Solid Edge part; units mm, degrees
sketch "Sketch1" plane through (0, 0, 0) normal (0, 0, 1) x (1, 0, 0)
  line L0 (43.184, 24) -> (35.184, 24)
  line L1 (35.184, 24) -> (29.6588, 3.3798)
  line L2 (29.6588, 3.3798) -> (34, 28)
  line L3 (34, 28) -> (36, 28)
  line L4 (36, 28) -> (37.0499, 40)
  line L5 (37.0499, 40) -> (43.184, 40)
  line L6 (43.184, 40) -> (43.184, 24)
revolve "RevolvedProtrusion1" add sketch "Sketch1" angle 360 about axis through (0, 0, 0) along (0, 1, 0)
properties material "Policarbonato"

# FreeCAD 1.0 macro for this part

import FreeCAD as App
import Part
import Sketcher
Q = App.Units.Quantity

doc = App.newDocument("Part")
params = doc.addObject("Spreadsheet::Sheet", "Params")
for row, (alias, value) in enumerate([
    ("sketch1_width", "8 mm"),
    ("sketch1_width2", "2 mm"),
    ("sketch1_height", "16 mm"),
    ("sketch1_length", "25 mm"),
    ("revolution_angle", "360 deg"),
], start=1):
    params.set(f"A{row}", alias)
    params.set(f"B{row}", "=" + value)
    params.setAlias(f"B{row}", alias)

body = doc.addObject("PartDesign::Body", "Body")

sketch1 = doc.addObject("Sketcher::SketchObject", "Sketch")
body.addObject(sketch1)
sketch1.AttachmentSupport = (doc.XY_Plane, [""])
sketch1.MapMode = "FlatFace"
sketch1.addGeometry(Part.LineSegment(App.Vector(35.184, 24, 0), App.Vector(43.184, 24, 0)), False)
sketch1.addGeometry(Part.LineSegment(App.Vector(43.184, 24, 0), App.Vector(43.184, 40, 0)), False)
sketch1.addGeometry(Part.LineSegment(App.Vector(43.184, 40, 0), App.Vector(37.0499, 40, 0)), False)
sketch1.addGeometry(Part.LineSegment(App.Vector(37.0499, 40, 0), App.Vector(36, 28, 0)), False)
sketch1.addGeometry(Part.LineSegment(App.Vector(36, 28, 0), App.Vector(34, 28, 0)), False)
sketch1.addGeometry(Part.LineSegment(App.Vector(34, 28, 0), App.Vector(29.6588, 3.3798, 0)), False)
sketch1.addGeometry(Part.LineSegment(App.Vector(29.6588, 3.3798, 0), App.Vector(35.184, 24, 0)), False)
sketch1.addConstraint(Sketcher.Constraint("Coincident", 0, 2, 1, 1))
sketch1.addConstraint(Sketcher.Constraint("Coincident", 1, 2, 2, 1))
sketch1.addConstraint(Sketcher.Constraint("Coincident", 2, 2, 3, 1))
sketch1.addConstraint(Sketcher.Constraint("Coincident", 3, 2, 4, 1))
sketch1.addConstraint(Sketcher.Constraint("Coincident", 4, 2, 5, 1))
sketch1.addConstraint(Sketcher.Constraint("Coincident", 5, 2, 6, 1))
sketch1.addConstraint(Sketcher.Constraint("Coincident", 6, 2, 0, 1))
sketch1.addConstraint(Sketcher.Constraint("Horizontal", 0))
sketch1.addConstraint(Sketcher.Constraint("Vertical", 1))
sketch1.addConstraint(Sketcher.Constraint("Horizontal", 2))
sketch1.addConstraint(Sketcher.Constraint("Horizontal", 4))
sketch1.addConstraint(Sketcher.Constraint("DistanceX", 0, 1, 0, 2, 8.0))
sketch1.addConstraint(Sketcher.Constraint("DistanceX", 4, 2, 4, 1, 2.0))
sketch1.addConstraint(Sketcher.Constraint("DistanceY", 1, 1, 1, 2, 16.0))
sketch1.addConstraint(Sketcher.Constraint("Angle", 3, Q("-95.0002 deg")))
sketch1.addConstraint(Sketcher.Constraint("Angle", 5, Q("-100 deg")))
sketch1.addConstraint(Sketcher.Constraint("Angle", 6, Q("75 deg")))
sketch1.addConstraint(Sketcher.Constraint("Distance", 5, 25.0))
sketch1.addConstraint(Sketcher.Constraint("DistanceY", -1, 1, 0, 2, 24.0))
sketch1.addConstraint(Sketcher.Constraint("DistanceX", -1, 1, 3, 2, 36.0))
sketch1.addConstraint(Sketcher.Constraint("DistanceY", -1, 1, 3, 2, 28.0))
sketch1.setExpression("Constraints[11]", "Params.sketch1_width")
sketch1.setExpression("Constraints[12]", "Params.sketch1_width2")
sketch1.setExpression("Constraints[13]", "Params.sketch1_height")
sketch1.setExpression("Constraints[17]", "Params.sketch1_length")
revolution = doc.addObject("PartDesign::Revolution", "Revolution")
body.addObject(revolution)
revolution.Profile = sketch1
revolution.ReferenceAxis = (sketch1, ["V_Axis"])
revolution.setExpression("Angle", "Params.revolution_angle")

doc.recompute()
